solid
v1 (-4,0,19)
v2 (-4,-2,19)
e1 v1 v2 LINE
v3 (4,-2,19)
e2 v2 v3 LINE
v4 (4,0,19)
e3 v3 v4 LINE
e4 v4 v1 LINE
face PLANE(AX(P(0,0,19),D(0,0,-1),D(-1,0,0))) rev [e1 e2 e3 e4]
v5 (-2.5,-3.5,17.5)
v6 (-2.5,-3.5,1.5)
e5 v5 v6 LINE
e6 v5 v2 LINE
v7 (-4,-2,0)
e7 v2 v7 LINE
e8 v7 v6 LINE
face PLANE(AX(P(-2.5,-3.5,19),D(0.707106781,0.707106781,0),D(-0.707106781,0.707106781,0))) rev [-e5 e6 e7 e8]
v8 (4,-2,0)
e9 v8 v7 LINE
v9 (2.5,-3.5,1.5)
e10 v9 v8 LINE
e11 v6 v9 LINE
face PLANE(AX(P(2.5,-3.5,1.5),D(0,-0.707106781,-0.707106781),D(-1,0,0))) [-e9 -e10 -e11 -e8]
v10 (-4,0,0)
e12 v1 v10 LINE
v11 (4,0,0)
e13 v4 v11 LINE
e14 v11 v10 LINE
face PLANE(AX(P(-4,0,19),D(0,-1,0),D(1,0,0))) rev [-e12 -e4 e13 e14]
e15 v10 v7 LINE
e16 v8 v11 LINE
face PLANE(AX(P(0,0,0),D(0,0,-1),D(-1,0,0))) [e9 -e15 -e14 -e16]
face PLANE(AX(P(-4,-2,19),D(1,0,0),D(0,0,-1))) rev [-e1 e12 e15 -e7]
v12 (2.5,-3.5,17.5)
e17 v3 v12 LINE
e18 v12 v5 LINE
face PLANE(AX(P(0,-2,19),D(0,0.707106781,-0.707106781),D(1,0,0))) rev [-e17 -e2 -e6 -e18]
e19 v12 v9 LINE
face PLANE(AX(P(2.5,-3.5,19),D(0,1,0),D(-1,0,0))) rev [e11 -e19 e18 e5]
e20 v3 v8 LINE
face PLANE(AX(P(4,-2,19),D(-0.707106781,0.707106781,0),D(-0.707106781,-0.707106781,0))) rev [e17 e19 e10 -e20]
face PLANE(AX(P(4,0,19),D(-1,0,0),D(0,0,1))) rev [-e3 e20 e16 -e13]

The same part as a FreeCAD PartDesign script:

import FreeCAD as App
import Part
import Sketcher
from FreeCAD import Vector


def edges_at(feature, points):
    """Names of the edges that pass closest to the given points."""
    edges = feature.Shape.Edges
    near = lambda p: min(range(len(edges)), key=lambda i: edges[i].distToShape(Part.Vertex(*p))[0])
    return sorted({f"Edge{near(p) + 1}" for p in points})

doc = App.newDocument("Part")
body = doc.addObject("PartDesign::Body", "Body")

# Sketch on XY plane
sketch1 = body.newObject("Sketcher::SketchObject", "Sketch")
sketch1.AttachmentSupport = (doc.getObject("XY_Plane"), [""])
sketch1.MapMode = "FlatFace"
sketch1.addGeometry(Part.LineSegment(Vector(4, 0, 0), Vector(-4, 0, 0)), False)
sketch1.addGeometry(Part.LineSegment(Vector(-4, 0, 0), Vector(-4, -2, 0)), False)
sketch1.addGeometry(Part.LineSegment(Vector(-4, -2, 0), Vector(-2.5, -3.5, 0)), False)
sketch1.addGeometry(Part.LineSegment(Vector(-2.5, -3.5, 0), Vector(2.5, -3.5, 0)), False)
sketch1.addGeometry(Part.LineSegment(Vector(2.5, -3.5, 0), Vector(4, -2, 0)), False)
sketch1.addGeometry(Part.LineSegment(Vector(4, -2, 0), Vector(4, 0, 0)), False)
sketch1.addConstraint(Sketcher.Constraint("Coincident", 0, 2, 1, 1))
sketch1.addConstraint(Sketcher.Constraint("Coincident", 1, 2, 2, 1))
sketch1.addConstraint(Sketcher.Constraint("Coincident", 2, 2, 3, 1))
sketch1.addConstraint(Sketcher.Constraint("Coincident", 3, 2, 4, 1))
sketch1.addConstraint(Sketcher.Constraint("Coincident", 4, 2, 5, 1))
sketch1.addConstraint(Sketcher.Constraint("Coincident", 5, 2, 0, 1))
sketch1.addConstraint(Sketcher.Constraint("Horizontal", 0))
sketch1.addConstraint(Sketcher.Constraint("Vertical", 1))
sketch1.addConstraint(Sketcher.Constraint("Horizontal", 3))
sketch1.addConstraint(Sketcher.Constraint("Vertical", 5))
sketch1.addConstraint(Sketcher.Constraint("Symmetric", 0, 2, 5, 2, -1, 1))
sketch1.addConstraint(Sketcher.Constraint("Perpendicular", 2, 4))
sketch1.addConstraint(Sketcher.Constraint("Horizontal", 1, 2, 4, 2))
sketch1.addConstraint(Sketcher.Constraint("Equal", 2, 4))
sketch1.addConstraint(Sketcher.Constraint("DistanceX", 0, 2, 0, 1, 8.0))
sketch1.addConstraint(Sketcher.Constraint("DistanceX", 3, 1, 3, 2, 5.0))
sketch1.addConstraint(Sketcher.Constraint("DistanceY", 1, 2, 1, 1, 2.0))
pad1 = body.newObject("PartDesign::Pad", "Pad")
pad1.Profile = sketch1
pad1.Length = 19
doc.recompute()

chamfer = body.newObject("PartDesign::Chamfer", "Chamfer")
chamfer.Base = (pad1, edges_at(pad1, [(0, -3.5, 0), (0, -3.5, 19)]))
chamfer.Size = 1.5

doc.recompute()
